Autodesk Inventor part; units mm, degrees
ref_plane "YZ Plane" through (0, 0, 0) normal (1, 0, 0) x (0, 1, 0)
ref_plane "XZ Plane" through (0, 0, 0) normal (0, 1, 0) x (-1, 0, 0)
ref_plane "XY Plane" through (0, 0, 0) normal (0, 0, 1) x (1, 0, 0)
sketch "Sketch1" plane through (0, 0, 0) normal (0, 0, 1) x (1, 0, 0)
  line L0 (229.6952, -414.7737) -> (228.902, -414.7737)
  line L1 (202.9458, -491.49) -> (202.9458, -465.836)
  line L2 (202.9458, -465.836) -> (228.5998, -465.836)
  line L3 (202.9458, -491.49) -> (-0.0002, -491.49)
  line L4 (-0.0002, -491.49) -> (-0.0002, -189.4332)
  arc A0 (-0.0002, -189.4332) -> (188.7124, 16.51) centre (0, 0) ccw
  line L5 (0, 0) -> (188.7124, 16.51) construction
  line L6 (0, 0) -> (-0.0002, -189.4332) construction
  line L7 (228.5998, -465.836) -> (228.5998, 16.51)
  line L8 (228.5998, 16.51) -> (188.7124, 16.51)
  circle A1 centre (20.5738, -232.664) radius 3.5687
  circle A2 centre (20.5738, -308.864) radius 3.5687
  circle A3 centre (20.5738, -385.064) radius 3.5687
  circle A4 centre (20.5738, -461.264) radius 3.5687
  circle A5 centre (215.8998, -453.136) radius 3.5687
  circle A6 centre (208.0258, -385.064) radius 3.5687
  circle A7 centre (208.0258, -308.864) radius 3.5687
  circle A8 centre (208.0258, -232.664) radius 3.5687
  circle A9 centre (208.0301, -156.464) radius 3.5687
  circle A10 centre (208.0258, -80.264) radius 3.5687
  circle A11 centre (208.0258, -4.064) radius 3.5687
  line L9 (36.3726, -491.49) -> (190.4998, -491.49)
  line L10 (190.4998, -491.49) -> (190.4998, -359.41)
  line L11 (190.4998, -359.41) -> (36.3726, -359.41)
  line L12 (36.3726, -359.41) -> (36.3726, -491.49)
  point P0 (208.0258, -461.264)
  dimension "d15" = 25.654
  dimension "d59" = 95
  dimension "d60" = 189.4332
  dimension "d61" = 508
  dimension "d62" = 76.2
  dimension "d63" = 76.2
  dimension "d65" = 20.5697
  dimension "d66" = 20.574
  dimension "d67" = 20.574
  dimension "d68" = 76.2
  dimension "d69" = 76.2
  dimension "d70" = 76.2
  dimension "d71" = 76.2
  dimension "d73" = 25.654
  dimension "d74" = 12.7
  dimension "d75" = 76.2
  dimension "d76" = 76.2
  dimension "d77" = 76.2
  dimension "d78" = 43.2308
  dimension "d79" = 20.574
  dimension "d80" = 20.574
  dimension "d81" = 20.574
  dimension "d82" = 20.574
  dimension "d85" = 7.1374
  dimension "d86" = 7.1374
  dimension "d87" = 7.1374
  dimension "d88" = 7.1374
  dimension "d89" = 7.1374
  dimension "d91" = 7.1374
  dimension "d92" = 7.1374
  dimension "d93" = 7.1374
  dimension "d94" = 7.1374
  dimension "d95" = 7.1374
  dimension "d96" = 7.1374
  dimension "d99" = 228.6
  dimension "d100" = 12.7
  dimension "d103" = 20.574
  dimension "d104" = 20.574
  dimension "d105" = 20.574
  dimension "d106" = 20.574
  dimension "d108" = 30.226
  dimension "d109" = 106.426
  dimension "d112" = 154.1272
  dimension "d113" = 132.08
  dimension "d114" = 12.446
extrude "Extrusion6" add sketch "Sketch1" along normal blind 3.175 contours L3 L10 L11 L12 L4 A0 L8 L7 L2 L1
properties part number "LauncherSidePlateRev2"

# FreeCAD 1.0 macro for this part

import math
import FreeCAD as App
import Part
import Sketcher

V = App.Vector
Q = App.Units.Quantity

doc = App.newDocument("Part")
body = doc.addObject("PartDesign::Body", "Body")

# Sketch on XY plane
sketch1 = body.newObject("Sketcher::SketchObject", "Sketch")
sketch1.AttachmentSupport = (doc.getObject("XY_Plane"), [""])
sketch1.MapMode = "FlatFace"
sketch1.addGeometry(Part.LineSegment(V(190.4998, -491.49, 0), V(202.9458, -491.49, 0)), False)
sketch1.addGeometry(Part.LineSegment(V(202.9458, -491.49, 0), V(202.9458, -465.836, 0)), False)
sketch1.addGeometry(Part.LineSegment(V(202.9458, -465.836, 0), V(228.5998, -465.836, 0)), False)
sketch1.addGeometry(Part.LineSegment(V(228.5998, -465.836, 0), V(228.5998, 16.51, 0)), False)
sketch1.addGeometry(Part.LineSegment(V(228.5998, 16.51, 0), V(188.7124, 16.51, 0)), False)
sketch1.addGeometry(Part.ArcOfCircle(Part.Circle(V(0, 0, 0), V(0, 0, 1), 189.4332), math.radians(-90.00006), math.radians(4.999941)), False)
sketch1.addGeometry(Part.LineSegment(V(-0.0002, -189.4332, 0), V(-0.0002, -491.49, 0)), False)
sketch1.addGeometry(Part.LineSegment(V(-0.0002, -491.49, 0), V(36.3726, -491.49, 0)), False)
sketch1.addGeometry(Part.LineSegment(V(36.3726, -491.49, 0), V(36.3726, -359.41, 0)), False)
sketch1.addGeometry(Part.LineSegment(V(36.3726, -359.41, 0), V(190.4998, -359.41, 0)), False)
sketch1.addGeometry(Part.LineSegment(V(190.4998, -359.41, 0), V(190.4998, -491.49, 0)), False)
sketch1.addGeometry(Part.Circle(V(20.5738, -461.264, 0), V(0, 0, 1), 3.5687), False)
sketch1.addGeometry(Part.Circle(V(20.5738, -385.064, 0), V(0, 0, 1), 3.5687), False)
sketch1.addGeometry(Part.Circle(V(20.5738, -308.864, 0), V(0, 0, 1), 3.5687), False)
sketch1.addGeometry(Part.Circle(V(215.8998, -453.136, 0), V(0, 0, 1), 3.5687), False)
sketch1.addGeometry(Part.Circle(V(208.0258, -385.064, 0), V(0, 0, 1), 3.5687), False)
sketch1.addGeometry(Part.Circle(V(208.0258, -308.864, 0), V(0, 0, 1), 3.5687), False)
sketch1.addGeometry(Part.Circle(V(20.5738, -232.664, 0), V(0, 0, 1), 3.5687), False)
sketch1.addGeometry(Part.Circle(V(208.0258, -232.664, 0), V(0, 0, 1), 3.5687), False)
sketch1.addGeometry(Part.Circle(V(208.0301, -156.464, 0), V(0, 0, 1), 3.5687), False)
sketch1.addGeometry(Part.Circle(V(208.0258, -80.264, 0), V(0, 0, 1), 3.5687), False)
sketch1.addGeometry(Part.Circle(V(208.0258, -4.064, 0), V(0, 0, 1), 3.5687), False)
sketch1.addConstraint(Sketcher.Constraint("Coincident", 0, 2, 1, 1))
sketch1.addConstraint(Sketcher.Constraint("Coincident", 1, 2, 2, 1))
sketch1.addConstraint(Sketcher.Constraint("Coincident", 2, 2, 3, 1))
sketch1.addConstraint(Sketcher.Constraint("Coincident", 3, 2, 4, 1))
sketch1.addConstraint(Sketcher.Constraint("Coincident", 4, 2, 5, 2))
sketch1.addConstraint(Sketcher.Constraint("Coincident", 5, 1, 6, 1))
sketch1.addConstraint(Sketcher.Constraint("Coincident", 6, 2, 7, 1))
sketch1.addConstraint(Sketcher.Constraint("Coincident", 7, 2, 8, 1))
sketch1.addConstraint(Sketcher.Constraint("Coincident", 8, 2, 9, 1))
sketch1.addConstraint(Sketcher.Constraint("Coincident", 9, 2, 10, 1))
sketch1.addConstraint(Sketcher.Constraint("Coincident", 10, 2, 0, 1))
sketch1.addConstraint(Sketcher.Constraint("Horizontal", 0))
sketch1.addConstraint(Sketcher.Constraint("Vertical", 1))
sketch1.addConstraint(Sketcher.Constraint("Horizontal", 2))
sketch1.addConstraint(Sketcher.Constraint("Vertical", 3))
sketch1.addConstraint(Sketcher.Constraint("Horizontal", 4))
sketch1.addConstraint(Sketcher.Constraint("Vertical", 6))
sketch1.addConstraint(Sketcher.Constraint("Horizontal", 7))
sketch1.addConstraint(Sketcher.Constraint("Vertical", 8))
sketch1.addConstraint(Sketcher.Constraint("Horizontal", 9))
sketch1.addConstraint(Sketcher.Constraint("Vertical", 10))
sketch1.addConstraint(Sketcher.Constraint("Coincident", 5, 3, -1, 1))
sketch1.addConstraint(Sketcher.Constraint("Equal", 11, 12))
sketch1.addConstraint(Sketcher.Constraint("Equal", 12, 13))
sketch1.addConstraint(Sketcher.Constraint("Equal", 13, 14))
sketch1.addConstraint(Sketcher.Constraint("Equal", 14, 15))
sketch1.addConstraint(Sketcher.Constraint("Equal", 15, 16))
sketch1.addConstraint(Sketcher.Constraint("Equal", 16, 17))
sketch1.addConstraint(Sketcher.Constraint("Equal", 17, 18))
sketch1.addConstraint(Sketcher.Constraint("Equal", 18, 19))
sketch1.addConstraint(Sketcher.Constraint("Equal", 19, 20))
sketch1.addConstraint(Sketcher.Constraint("Equal", 20, 21))
sketch1.addConstraint(Sketcher.Constraint("Horizontal", 12, 3, 15, 3))
sketch1.addConstraint(Sketcher.Constraint("Horizontal", 13, 3, 16, 3))
sketch1.addConstraint(Sketcher.Constraint("Horizontal", 17, 3, 18, 3))
sketch1.addConstraint(Sketcher.Constraint("Horizontal", 0, 2, 6, 2))
sketch1.addConstraint(Sketcher.Constraint("Vertical", 11, 3, 12, 3))
sketch1.addConstraint(Sketcher.Constraint("Vertical", 12, 3, 13, 3))
sketch1.addConstraint(Sketcher.Constraint("Vertical", 15, 3, 16, 3))
sketch1.addConstraint(Sketcher.Constraint("Vertical", 13, 3, 17, 3))
sketch1.addConstraint(Sketcher.Constraint("Vertical", 16, 3, 18, 3))
sketch1.addConstraint(Sketcher.Constraint("Vertical", 18, 3, 20, 3))
sketch1.addConstraint(Sketcher.Constraint("Vertical", 20, 3, 21, 3))
sketch1.addConstraint(Sketcher.Constraint("Equal", 2, 1))
sketch1.addConstraint(Sketcher.Constraint("Diameter", 11, Q("0.281 in")))
sketch1.addConstraint(Sketcher.Constraint("DistanceY", 8, 1, 8, 2, Q("5.2 in")))
sketch1.addConstraint(Sketcher.Constraint("DistanceX", -1, 1, 2, 2, Q("9 in")))
sketch1.addConstraint(Sketcher.Constraint("Radius", 5, Q("7.458 in")))
sketch1.addConstraint(Sketcher.Constraint("DistanceY", 11, 3, 12, 3, Q("3 in")))
sketch1.addConstraint(Sketcher.Constraint("DistanceY", 12, 3, 13, 3, Q("3 in")))
sketch1.addConstraint(Sketcher.Constraint("DistanceY", 13, 3, 17, 3, Q("3 in")))
sketch1.addConstraint(Sketcher.Constraint("DistanceY", 18, 3, 19, 3, Q("3 in")))
sketch1.addConstraint(Sketcher.Constraint("DistanceY", 19, 3, 20, 3, Q("3 in")))
sketch1.addConstraint(Sketcher.Constraint("DistanceY", 20, 3, 21, 3, Q("3 in")))
sketch1.addConstraint(Sketcher.Constraint("DistanceX", 0, 1, 0, 2, Q("0.49 in")))
sketch1.addConstraint(Sketcher.Constraint("DistanceX", 2, 1, 2, 2, Q("1.01 in")))
sketch1.addConstraint(Sketcher.Constraint("DistanceY", 1, 2, 14, 3, Q("0.5 in")))
sketch1.addConstraint(Sketcher.Constraint("DistanceX", 14, 3, 2, 2, Q("0.5 in")))
sketch1.addConstraint(Sketcher.Constraint("DistanceX", 9, 1, 9, 2, Q("6.068 in")))
sketch1.addConstraint(Sketcher.Constraint("DistanceX", -1, 1, 11, 3, Q("0.81 in")))
sketch1.addConstraint(Sketcher.Constraint("DistanceY", 0, 2, 15, 3, Q("4.19 in")))
sketch1.addConstraint(Sketcher.Constraint("DistanceX", 15, 3, 2, 2, Q("0.81 in")))
sketch1.addConstraint(Sketcher.Constraint("DistanceY", 21, 3, 3, 2, Q("0.81 in")))
sketch1.addConstraint(Sketcher.Constraint("DistanceX", 5, 1, 17, 3, Q("0.81 in")))
sketch1.addConstraint(Sketcher.Constraint("DistanceY", 17, 3, 5, 1, Q("1.702 in")))
sketch1.addConstraint(Sketcher.Constraint("DistanceX", 19, 3, 3, 2, 20.5697))
pad1 = body.newObject("PartDesign::Pad", "Pad")
pad1.Profile = sketch1
pad1.Length = Q("0.125 in")

doc.recompute()
